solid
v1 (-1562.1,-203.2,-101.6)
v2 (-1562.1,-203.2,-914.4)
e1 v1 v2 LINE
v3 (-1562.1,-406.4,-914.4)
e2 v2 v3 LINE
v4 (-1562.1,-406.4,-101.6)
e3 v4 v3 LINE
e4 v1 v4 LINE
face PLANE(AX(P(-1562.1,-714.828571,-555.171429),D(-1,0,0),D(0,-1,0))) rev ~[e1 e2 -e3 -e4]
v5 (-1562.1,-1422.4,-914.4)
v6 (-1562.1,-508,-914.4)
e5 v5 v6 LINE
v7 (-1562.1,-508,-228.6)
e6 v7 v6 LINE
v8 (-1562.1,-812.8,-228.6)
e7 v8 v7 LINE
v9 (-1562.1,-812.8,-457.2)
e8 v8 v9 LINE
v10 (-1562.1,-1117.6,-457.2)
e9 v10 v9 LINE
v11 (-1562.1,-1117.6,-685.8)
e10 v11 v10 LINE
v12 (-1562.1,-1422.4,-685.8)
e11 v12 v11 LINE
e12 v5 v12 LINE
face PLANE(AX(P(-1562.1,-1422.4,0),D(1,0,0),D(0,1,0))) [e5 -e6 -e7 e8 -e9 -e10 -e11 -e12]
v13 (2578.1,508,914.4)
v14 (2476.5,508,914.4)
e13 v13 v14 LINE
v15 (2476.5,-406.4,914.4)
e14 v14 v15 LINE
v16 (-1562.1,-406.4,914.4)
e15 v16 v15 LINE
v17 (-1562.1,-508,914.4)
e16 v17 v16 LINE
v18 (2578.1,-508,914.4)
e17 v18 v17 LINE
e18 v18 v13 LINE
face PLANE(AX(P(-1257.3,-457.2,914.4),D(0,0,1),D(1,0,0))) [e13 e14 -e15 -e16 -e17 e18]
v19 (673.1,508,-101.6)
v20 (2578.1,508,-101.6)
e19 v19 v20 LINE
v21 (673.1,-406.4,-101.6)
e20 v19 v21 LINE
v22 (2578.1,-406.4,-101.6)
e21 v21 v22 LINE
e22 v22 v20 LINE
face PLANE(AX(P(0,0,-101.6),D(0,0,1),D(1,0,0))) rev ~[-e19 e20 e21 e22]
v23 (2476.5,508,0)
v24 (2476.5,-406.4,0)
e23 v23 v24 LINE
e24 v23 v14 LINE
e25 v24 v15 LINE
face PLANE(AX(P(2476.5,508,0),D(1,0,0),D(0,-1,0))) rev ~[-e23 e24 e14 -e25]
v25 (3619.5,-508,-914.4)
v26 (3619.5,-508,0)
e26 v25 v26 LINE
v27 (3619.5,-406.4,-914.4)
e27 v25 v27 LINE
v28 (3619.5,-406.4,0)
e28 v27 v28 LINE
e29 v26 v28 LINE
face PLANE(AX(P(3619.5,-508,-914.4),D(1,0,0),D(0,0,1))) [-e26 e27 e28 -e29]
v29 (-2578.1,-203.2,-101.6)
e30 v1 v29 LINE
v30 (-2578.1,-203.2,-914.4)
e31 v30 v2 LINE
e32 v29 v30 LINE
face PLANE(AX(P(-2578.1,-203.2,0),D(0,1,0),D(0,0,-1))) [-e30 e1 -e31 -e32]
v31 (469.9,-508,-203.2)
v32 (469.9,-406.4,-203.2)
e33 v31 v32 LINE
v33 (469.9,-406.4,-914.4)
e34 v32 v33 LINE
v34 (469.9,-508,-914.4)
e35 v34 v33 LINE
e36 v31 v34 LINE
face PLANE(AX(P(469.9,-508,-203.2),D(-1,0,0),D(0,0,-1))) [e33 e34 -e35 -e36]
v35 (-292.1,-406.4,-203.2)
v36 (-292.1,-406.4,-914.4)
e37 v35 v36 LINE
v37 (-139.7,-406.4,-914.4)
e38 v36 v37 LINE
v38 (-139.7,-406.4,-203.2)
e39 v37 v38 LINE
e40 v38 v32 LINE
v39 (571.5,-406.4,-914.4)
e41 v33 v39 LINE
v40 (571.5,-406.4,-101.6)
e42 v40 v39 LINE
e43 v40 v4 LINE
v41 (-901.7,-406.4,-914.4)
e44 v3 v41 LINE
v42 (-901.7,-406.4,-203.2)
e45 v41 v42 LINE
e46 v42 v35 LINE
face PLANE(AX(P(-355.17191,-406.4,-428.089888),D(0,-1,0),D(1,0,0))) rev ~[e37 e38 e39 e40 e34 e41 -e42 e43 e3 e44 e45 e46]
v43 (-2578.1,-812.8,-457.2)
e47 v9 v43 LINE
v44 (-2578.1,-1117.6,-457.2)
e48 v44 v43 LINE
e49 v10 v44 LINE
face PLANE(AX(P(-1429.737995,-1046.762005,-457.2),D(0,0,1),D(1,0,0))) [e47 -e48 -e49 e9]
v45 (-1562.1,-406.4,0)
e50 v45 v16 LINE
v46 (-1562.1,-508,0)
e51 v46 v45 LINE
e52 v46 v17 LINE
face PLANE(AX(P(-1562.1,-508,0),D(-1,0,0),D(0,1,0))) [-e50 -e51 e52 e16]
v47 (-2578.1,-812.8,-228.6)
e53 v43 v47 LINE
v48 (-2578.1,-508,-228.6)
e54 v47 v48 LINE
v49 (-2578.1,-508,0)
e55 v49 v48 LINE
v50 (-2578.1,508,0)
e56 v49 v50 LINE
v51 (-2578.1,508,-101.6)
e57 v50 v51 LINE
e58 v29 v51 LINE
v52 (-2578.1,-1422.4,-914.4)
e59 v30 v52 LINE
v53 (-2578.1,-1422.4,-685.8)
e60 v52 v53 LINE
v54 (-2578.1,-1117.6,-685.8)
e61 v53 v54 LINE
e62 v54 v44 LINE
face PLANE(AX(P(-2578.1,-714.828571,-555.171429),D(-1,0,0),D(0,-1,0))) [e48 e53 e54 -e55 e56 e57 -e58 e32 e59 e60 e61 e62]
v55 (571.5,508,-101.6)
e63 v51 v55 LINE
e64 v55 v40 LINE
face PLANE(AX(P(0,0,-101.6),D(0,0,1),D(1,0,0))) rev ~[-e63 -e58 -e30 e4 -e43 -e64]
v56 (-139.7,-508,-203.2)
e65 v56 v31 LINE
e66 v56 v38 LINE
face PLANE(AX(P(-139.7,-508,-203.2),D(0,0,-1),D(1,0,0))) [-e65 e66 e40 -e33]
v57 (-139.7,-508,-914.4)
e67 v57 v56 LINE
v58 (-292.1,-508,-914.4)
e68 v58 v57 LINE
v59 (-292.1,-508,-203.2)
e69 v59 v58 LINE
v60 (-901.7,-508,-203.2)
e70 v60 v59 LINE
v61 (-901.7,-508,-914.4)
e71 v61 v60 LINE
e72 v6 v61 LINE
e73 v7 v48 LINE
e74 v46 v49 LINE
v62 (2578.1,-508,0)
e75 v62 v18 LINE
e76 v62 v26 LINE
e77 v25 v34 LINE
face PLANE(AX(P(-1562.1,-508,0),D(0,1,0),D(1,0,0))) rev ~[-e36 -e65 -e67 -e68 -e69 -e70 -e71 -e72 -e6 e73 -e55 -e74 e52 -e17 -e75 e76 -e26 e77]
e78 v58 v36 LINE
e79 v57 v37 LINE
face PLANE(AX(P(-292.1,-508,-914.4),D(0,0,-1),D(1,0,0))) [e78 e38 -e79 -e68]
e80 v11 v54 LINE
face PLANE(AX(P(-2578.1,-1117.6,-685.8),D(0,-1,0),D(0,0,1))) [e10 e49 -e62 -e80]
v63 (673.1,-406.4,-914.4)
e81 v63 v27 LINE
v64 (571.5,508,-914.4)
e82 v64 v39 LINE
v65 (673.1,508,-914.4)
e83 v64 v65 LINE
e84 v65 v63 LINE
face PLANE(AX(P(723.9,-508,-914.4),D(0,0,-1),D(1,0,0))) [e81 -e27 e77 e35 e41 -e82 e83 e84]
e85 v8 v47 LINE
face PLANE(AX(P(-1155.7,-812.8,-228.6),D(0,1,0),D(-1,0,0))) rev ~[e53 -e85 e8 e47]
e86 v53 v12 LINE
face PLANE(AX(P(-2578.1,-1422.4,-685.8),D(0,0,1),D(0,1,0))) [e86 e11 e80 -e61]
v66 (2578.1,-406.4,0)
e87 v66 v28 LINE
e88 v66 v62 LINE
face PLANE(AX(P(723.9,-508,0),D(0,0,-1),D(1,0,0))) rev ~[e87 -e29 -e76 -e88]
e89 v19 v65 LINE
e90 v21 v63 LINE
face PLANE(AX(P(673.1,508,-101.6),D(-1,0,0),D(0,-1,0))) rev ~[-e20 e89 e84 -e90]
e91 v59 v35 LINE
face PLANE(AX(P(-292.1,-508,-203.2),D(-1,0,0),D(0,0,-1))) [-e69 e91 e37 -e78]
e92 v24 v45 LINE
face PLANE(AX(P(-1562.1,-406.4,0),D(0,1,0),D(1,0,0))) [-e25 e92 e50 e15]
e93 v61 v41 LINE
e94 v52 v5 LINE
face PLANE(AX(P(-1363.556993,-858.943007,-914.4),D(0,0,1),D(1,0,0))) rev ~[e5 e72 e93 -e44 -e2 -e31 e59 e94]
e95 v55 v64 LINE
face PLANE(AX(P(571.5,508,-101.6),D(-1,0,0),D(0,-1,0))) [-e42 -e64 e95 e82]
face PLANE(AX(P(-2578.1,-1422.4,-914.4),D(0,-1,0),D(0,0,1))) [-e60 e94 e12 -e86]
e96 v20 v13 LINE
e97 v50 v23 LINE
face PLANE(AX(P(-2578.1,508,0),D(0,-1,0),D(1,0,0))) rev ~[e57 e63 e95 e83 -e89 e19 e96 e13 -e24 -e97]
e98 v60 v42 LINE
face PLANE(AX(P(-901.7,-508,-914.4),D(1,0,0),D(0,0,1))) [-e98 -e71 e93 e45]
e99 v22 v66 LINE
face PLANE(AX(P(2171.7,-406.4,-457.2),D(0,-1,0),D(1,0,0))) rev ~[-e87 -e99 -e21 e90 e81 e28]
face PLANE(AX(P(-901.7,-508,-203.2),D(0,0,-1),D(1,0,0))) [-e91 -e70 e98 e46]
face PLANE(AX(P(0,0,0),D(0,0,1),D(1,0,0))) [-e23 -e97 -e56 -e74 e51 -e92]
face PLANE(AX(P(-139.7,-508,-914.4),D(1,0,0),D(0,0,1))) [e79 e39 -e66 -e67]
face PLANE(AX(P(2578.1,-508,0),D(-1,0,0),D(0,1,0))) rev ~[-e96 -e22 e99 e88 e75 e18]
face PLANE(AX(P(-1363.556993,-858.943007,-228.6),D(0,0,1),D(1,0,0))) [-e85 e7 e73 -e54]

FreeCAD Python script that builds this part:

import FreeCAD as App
import Part
import Sketcher
from FreeCAD import Vector
Q = App.Units.Quantity


def add_polygon(sketch, points):
    """Adds a closed chain of lines whose ends are joined by coincident constraints."""
    first, n = sketch.GeometryCount, len(points)
    for a, b in zip(points, points[1:] + points[:1]):
        sketch.addGeometry(Part.LineSegment(App.Vector(*a, 0), App.Vector(*b, 0)), False)
    for i in range(n):
        sketch.addConstraint(Sketcher.Constraint("Coincident", first + i, 2, first + (i + 1) % n, 1))

doc = App.newDocument("Part")
params = doc.addObject("Spreadsheet::Sheet", "Params")
for row, (alias, value) in enumerate([
    ("sketch1_width", "203 in"),
    ("sketch1_height", "40 in"),
    ("pad1_length", "4 in"),
    ("sketch2_width", "12 in"),
    ("sketch2_height", "9 in"),
    ("pad2_length", "40 in"),
    ("sketch3_width", "90 in"),
    ("sketch3_width2", "26 in"),
    ("sketch3_width3", "24 in"),
    ("sketch3_width4", "6 in"),
    ("sketch3_height", "32 in"),
    ("pad3_length", "4 in"),
    ("sketch4_width", "24 in"),
    ("sketch4_height", "36 in"),
    ("pad4_length", "27 in"),
    ("sketch5_width", "16 in"),
    ("sketch5_height", "24 in"),
    ("pocket1_length", "9 in"),
    ("sketch6_width", "8 in"),
    ("sketch6_height", "12 in"),
    ("pocket2_length", "9 in"),
    ("sketch7_width", "139 in"),
    ("sketch7_width2", "4 in"),
    ("sketch7_height", "40 in"),
    ("pad5_length", "36 in"),
    ("sketch8_width", "4 in"),
    ("sketch8_height", "36 in"),
    ("pad6_length", "32 in"),
    ("sketch9_width", "114 in"),
    ("sketch9_height", "36 in"),
    ("pad7_length", "4 in"),
    ("sketch10_width", "24 in"),
    ("sketch10_height", "36 in"),
    ("sketch11_width", "24 in"),
    ("sketch11_height", "4 in"),
    ("pad8_length", "36 in"),
], start=1):
    params.set(f"A{row}", alias)
    params.set(f"B{row}", "=" + value)
    params.setAlias(f"B{row}", alias)

body = doc.addObject("PartDesign::Body", "Body")

sketch1 = body.newObject("Sketcher::SketchObject", "Sketch")
sketch1.AttachmentSupport = (doc.getObject("XY_Plane"), [""])
sketch1.MapMode = "FlatFace"
add_polygon(sketch1, [(-2578.1, 508), (-2578.1, -508), (2578.1, -508), (2578.1, 508)])
sketch1.addConstraint(Sketcher.Constraint("Vertical", 0))
sketch1.addConstraint(Sketcher.Constraint("Horizontal", 1))
sketch1.addConstraint(Sketcher.Constraint("Vertical", 2))
sketch1.addConstraint(Sketcher.Constraint("Horizontal", 3))
sketch1.addConstraint(Sketcher.Constraint("Symmetric", 0, 2, 2, 2, -1, 1))
sketch1.addConstraint(Sketcher.Constraint("DistanceX", 1, 1, 1, 2, Q("203 in")))
sketch1.addConstraint(Sketcher.Constraint("DistanceY", 0, 2, 0, 1, Q("40 in")))
sketch1.setExpression("Constraints[9]", "Params.sketch1_width")
sketch1.setExpression("Constraints[10]", "Params.sketch1_height")
pad1 = body.newObject("PartDesign::Pad", "Pad")
pad1.Profile = sketch1
pad1.setExpression("Length", "Params.pad1_length")
pad1.Reversed = True

sketch2 = body.newObject("Sketcher::SketchObject", "Sketch001")
sketch2.AttachmentSupport = (doc.getObject("YZ_Plane"), [""])
sketch2.MapMode = "FlatFace"
sketch2.AttachmentOffset = App.Placement(Vector(0, 0, -101.5 * 25.4), App.Rotation())
add_polygon(sketch2, [(-508, -228.6), (-508, 0), (-203.2, 0), (-203.2, -914.4), (-1422.4, -914.4), (-1422.4, -685.8), (-1117.6, -685.8), (-1117.6, -457.2), (-812.8, -457.2), (-812.8, -228.6)])
sketch2.addConstraint(Sketcher.Constraint("Vertical", 0))
sketch2.addConstraint(Sketcher.Constraint("Horizontal", 1))
sketch2.addConstraint(Sketcher.Constraint("Vertical", 2))
sketch2.addConstraint(Sketcher.Constraint("Horizontal", 3))
sketch2.addConstraint(Sketcher.Constraint("Vertical", 4))
sketch2.addConstraint(Sketcher.Constraint("Horizontal", 5))
sketch2.addConstraint(Sketcher.Constraint("Vertical", 6))
sketch2.addConstraint(Sketcher.Constraint("Horizontal", 7))
sketch2.addConstraint(Sketcher.Constraint("Vertical", 8))
sketch2.addConstraint(Sketcher.Constraint("Horizontal", 9))
sketch2.addConstraint(Sketcher.Constraint("PointOnObject", 0, 2, -1))
sketch2.addConstraint(Sketcher.Constraint("Equal", 1, 5))
sketch2.addConstraint(Sketcher.Constraint("Equal", 5, 7))
sketch2.addConstraint(Sketcher.Constraint("Equal", 7, 9))
sketch2.addConstraint(Sketcher.Constraint("Equal", 0, 4))
sketch2.addConstraint(Sketcher.Constraint("Equal", 4, 6))
sketch2.addConstraint(Sketcher.Constraint("Equal", 6, 8))
sketch2.addConstraint(Sketcher.Constraint("DistanceX", 1, 1, 1, 2, Q("12 in")))
sketch2.addConstraint(Sketcher.Constraint("DistanceY", 0, 1, 0, 2, Q("9 in")))
sketch2.addConstraint(Sketcher.Constraint("DistanceX", 0, 2, -1, 1, Q("20 in")))
sketch2.setExpression("Constraints[27]", "Params.sketch2_width")
sketch2.setExpression("Constraints[28]", "Params.sketch2_height")
pad2 = body.newObject("PartDesign::Pad", "Pad001")
pad2.Profile = sketch2
pad2.setExpression("Length", "Params.pad2_length")

sketch3 = body.newObject("Sketcher::SketchObject", "Sketch002")
sketch3.AttachmentSupport = (doc.getObject("XZ_Plane"), [""])
sketch3.MapMode = "FlatFace"
sketch3.AttachmentOffset = App.Placement(Vector(0, 0, 20 * 25.4), App.Rotation())
add_polygon(sketch3, [(723.9, -101.6), (-1562.1, -101.6), (-1562.1, -914.4), (-901.7, -914.4), (-901.7, -203.2), (-292.1, -203.2), (-292.1, -914.4), (-139.7, -914.4), (-139.7, -203.2), (469.9, -203.2), (469.9, -914.4), (723.9, -914.4)])
sketch3.addConstraint(Sketcher.Constraint("Horizontal", 0))
sketch3.addConstraint(Sketcher.Constraint("Vertical", 1))
sketch3.addConstraint(Sketcher.Constraint("Horizontal", 2))
sketch3.addConstraint(Sketcher.Constraint("Vertical", 3))
sketch3.addConstraint(Sketcher.Constraint("Horizontal", 4))
sketch3.addConstraint(Sketcher.Constraint("Vertical", 5))
sketch3.addConstraint(Sketcher.Constraint("Horizontal", 6))
sketch3.addConstraint(Sketcher.Constraint("Vertical", 7))
sketch3.addConstraint(Sketcher.Constraint("Horizontal", 8))
sketch3.addConstraint(Sketcher.Constraint("Vertical", 9))
sketch3.addConstraint(Sketcher.Constraint("Horizontal", 10))
sketch3.addConstraint(Sketcher.Constraint("Vertical", 11))
sketch3.addConstraint(Sketcher.Constraint("Horizontal", 2, 2, 5, 2))
sketch3.addConstraint(Sketcher.Constraint("Horizontal", 4, 2, 7, 2))
sketch3.addConstraint(Sketcher.Constraint("Horizontal", 6, 2, 9, 2))
sketch3.addConstraint(Sketcher.Constraint("Equal", 4, 8))
sketch3.addConstraint(Sketcher.Constraint("DistanceX", 0, 2, 0, 1, Q("90 in")))
sketch3.addConstraint(Sketcher.Constraint("DistanceX", 2, 1, 2, 2, Q("26 in")))
sketch3.addConstraint(Sketcher.Constraint("DistanceX", 4, 1, 4, 2, Q("24 in")))
sketch3.addConstraint(Sketcher.Constraint("DistanceX", 6, 1, 6, 2, Q("6 in")))
sketch3.addConstraint(Sketcher.Constraint("DistanceY", 1, 2, 1, 1, Q("32 in")))
sketch3.addConstraint(Sketcher.Constraint("DistanceY", 3, 1, 3, 2, Q("28 in")))
sketch3.addConstraint(Sketcher.Constraint("DistanceY", 0, 2, -1, 1, Q("4 in")))
sketch3.addConstraint(Sketcher.Constraint("DistanceX", 0, 2, -1, 1, Q("61.5 in")))
sketch3.setExpression("Constraints[28]", "Params.sketch3_width")
sketch3.setExpression("Constraints[29]", "Params.sketch3_width2")
sketch3.setExpression("Constraints[30]", "Params.sketch3_width3")
sketch3.setExpression("Constraints[31]", "Params.sketch3_width4")
sketch3.setExpression("Constraints[32]", "Params.sketch3_height")
pad3 = body.newObject("PartDesign::Pad", "Pad002")
pad3.Profile = sketch3
pad3.setExpression("Length", "Params.pad3_length")
pad3.Reversed = True

sketch4 = body.newObject("Sketcher::SketchObject", "Sketch003")
sketch4.AttachmentSupport = (doc.getObject("XY_Plane"), [""])
sketch4.MapMode = "FlatFace"
sketch4.AttachmentOffset = App.Placement(Vector(0, 0, -9 * 25.4), App.Rotation())
add_polygon(sketch4, [(-952.5, -508), (-1562.1, -508), (-1562.1, -1422.4)])
sketch4.addConstraint(Sketcher.Constraint("Horizontal", 0))
sketch4.addConstraint(Sketcher.Constraint("Vertical", 1))
sketch4.addConstraint(Sketcher.Constraint("DistanceX", 0, 2, 0, 1, Q("24 in")))
sketch4.addConstraint(Sketcher.Constraint("DistanceY", 1, 2, 1, 1, Q("36 in")))
sketch4.addConstraint(Sketcher.Constraint("DistanceY", 0, 2, -1, 1, Q("20 in")))
sketch4.addConstraint(Sketcher.Constraint("DistanceX", 0, 2, -1, 1, Q("61.5 in")))
sketch4.setExpression("Constraints[5]", "Params.sketch4_width")
sketch4.setExpression("Constraints[6]", "Params.sketch4_height")
pad4 = body.newObject("PartDesign::Pad", "Pad003")
pad4.Profile = sketch4
pad4.setExpression("Length", "Params.pad4_length")
pad4.Reversed = True

sketch5 = body.newObject("Sketcher::SketchObject", "Sketch004")
sketch5.AttachmentSupport = (doc.getObject("XY_Plane"), [""])
sketch5.MapMode = "FlatFace"
sketch5.AttachmentOffset = App.Placement(Vector(0, 0, -9 * 25.4), App.Rotation())
add_polygon(sketch5, [(-1155.7, -812.8), (-1562.1, -812.8), (-1562.1, -1422.4)])
sketch5.addConstraint(Sketcher.Constraint("Horizontal", 0))
sketch5.addConstraint(Sketcher.Constraint("Vertical", 1))
sketch5.addConstraint(Sketcher.Constraint("DistanceX", 0, 2, 0, 1, Q("16 in")))
sketch5.addConstraint(Sketcher.Constraint("DistanceY", 1, 2, 1, 1, Q("24 in")))
sketch5.addConstraint(Sketcher.Constraint("DistanceY", 0, 2, -1, 1, Q("32 in")))
sketch5.addConstraint(Sketcher.Constraint("DistanceX", 0, 2, -1, 1, Q("61.5 in")))
sketch5.setExpression("Constraints[5]", "Params.sketch5_width")
sketch5.setExpression("Constraints[6]", "Params.sketch5_height")
pocket1 = body.newObject("PartDesign::Pocket", "Pocket")
pocket1.Profile = sketch5
pocket1.setExpression("Length", "Params.pocket1_length")

sketch6 = body.newObject("Sketcher::SketchObject", "Sketch005")
sketch6.AttachmentSupport = (doc.getObject("XY_Plane"), [""])
sketch6.MapMode = "FlatFace"
sketch6.AttachmentOffset = App.Placement(Vector(0, 0, -18 * 25.4), App.Rotation())
add_polygon(sketch6, [(-1358.9, -1117.6), (-1562.1, -1117.6), (-1562.1, -1422.4)])
sketch6.addConstraint(Sketcher.Constraint("Horizontal", 0))
sketch6.addConstraint(Sketcher.Constraint("Vertical", 1))
sketch6.addConstraint(Sketcher.Constraint("DistanceX", 0, 2, 0, 1, Q("8 in")))
sketch6.addConstraint(Sketcher.Constraint("DistanceY", 1, 2, 1, 1, Q("12 in")))
sketch6.addConstraint(Sketcher.Constraint("DistanceY", 0, 2, -1, 1, Q("44 in")))
sketch6.addConstraint(Sketcher.Constraint("DistanceX", 0, 2, -1, 1, Q("61.5 in")))
sketch6.setExpression("Constraints[5]", "Params.sketch6_width")
sketch6.setExpression("Constraints[6]", "Params.sketch6_height")
pocket2 = body.newObject("PartDesign::Pocket", "Pocket001")
pocket2.Profile = sketch6
pocket2.setExpression("Length", "Params.pocket2_length")

sketch7 = body.newObject("Sketcher::SketchObject", "Sketch006")
sketch7.AttachmentSupport = (doc.getObject("XY_Plane"), [""])
sketch7.MapMode = "FlatFace"
add_polygon(sketch7, [(-952.5, -406.4), (-952.5, -508), (2578.1, -508), (2578.1, 508), (2476.5, 508), (2476.5, -406.4)])
sketch7.addConstraint(Sketcher.Constraint("Vertical", 0))
sketch7.addConstraint(Sketcher.Constraint("Horizontal", 1))
sketch7.addConstraint(Sketcher.Constraint("Vertical", 2))
sketch7.addConstraint(Sketcher.Constraint("Horizontal", 3))
sketch7.addConstraint(Sketcher.Constraint("Vertical", 4))
sketch7.addConstraint(Sketcher.Constraint("Horizontal", 5))
sketch7.addConstraint(Sketcher.Constraint("Equal", 3, 0))
sketch7.addConstraint(Sketcher.Constraint("DistanceX", 1, 1, 1, 2, Q("139 in")))
sketch7.addConstraint(Sketcher.Constraint("DistanceX", 3, 2, 3, 1, Q("4 in")))
sketch7.addConstraint(Sketcher.Constraint("DistanceY", 2, 1, 2, 2, Q("40 in")))
sketch7.addConstraint(Sketcher.Constraint("DistanceY", 0, 2, -1, 1, Q("20 in")))
sketch7.addConstraint(Sketcher.Constraint("DistanceX", 0, 2, -1, 1, Q("37.5 in")))
sketch7.setExpression("Constraints[13]", "Params.sketch7_width")
sketch7.setExpression("Constraints[14]", "Params.sketch7_width2")
sketch7.setExpression("Constraints[15]", "Params.sketch7_height")
pad5 = body.newObject("PartDesign::Pad", "Pad004")
pad5.Profile = sketch7
pad5.setExpression("Length", "Params.pad5_length")

sketch8 = body.newObject("Sketcher::SketchObject", "Sketch007")
sketch8.AttachmentSupport = (doc.getObject("XY_Plane"), [""])
sketch8.MapMode = "FlatFace"
sketch8.AttachmentOffset = App.Placement(Vector(0, 0, -4 * 25.4), App.Rotation())
add_polygon(sketch8, [(571.5, -406.4), (571.5, 508), (673.1, 508), (673.1, -406.4)])
sketch8.addConstraint(Sketcher.Constraint("Vertical", 0))
sketch8.addConstraint(Sketcher.Constraint("Horizontal", 1))
sketch8.addConstraint(Sketcher.Constraint("Vertical", 2))
sketch8.addConstraint(Sketcher.Constraint("Horizontal", 3))
sketch8.addConstraint(Sketcher.Constraint("DistanceX", 1, 1, 1, 2, Q("4 in")))
sketch8.addConstraint(Sketcher.Constraint("DistanceY", 0, 1, 0, 2, Q("36 in")))
sketch8.addConstraint(Sketcher.Constraint("DistanceY", -1, 1, 0, 2, Q("20 in")))
sketch8.addConstraint(Sketcher.Constraint("DistanceX", -1, 1, 0, 2, Q("22.5 in")))
sketch8.setExpression("Constraints[8]", "Params.sketch8_width")
sketch8.setExpression("Constraints[9]", "Params.sketch8_height")
pad6 = body.newObject("PartDesign::Pad", "Pad005")
pad6.Profile = sketch8
pad6.setExpression("Length", "Params.pad6_length")
pad6.Reversed = True

sketch9 = body.newObject("Sketcher::SketchObject", "Sketch008")
sketch9.AttachmentSupport = (doc.getObject("XZ_Plane"), [""])
sketch9.MapMode = "FlatFace"
sketch9.AttachmentOffset = App.Placement(Vector(0, 0, 20 * 25.4), App.Rotation())
add_polygon(sketch9, [(723.9, 0), (723.9, -914.4), (3619.5, -914.4), (3619.5, 0)])
sketch9.addConstraint(Sketcher.Constraint("Vertical", 0))
sketch9.addConstraint(Sketcher.Constraint("Horizontal", 1))
sketch9.addConstraint(Sketcher.Constraint("Vertical", 2))
sketch9.addConstraint(Sketcher.Constraint("Horizontal", 3))
sketch9.addConstraint(Sketcher.Constraint("PointOnObject", 2, 2, -1))
sketch9.addConstraint(Sketcher.Constraint("DistanceX", 1, 1, 1, 2, Q("114 in")))
sketch9.addConstraint(Sketcher.Constraint("DistanceY", 0, 2, 0, 1, Q("36 in")))
sketch9.addConstraint(Sketcher.Constraint("DistanceX", -1, 1, 0, 2, Q("28.5 in")))
sketch9.setExpression("Constraints[9]", "Params.sketch9_width")
sketch9.setExpression("Constraints[10]", "Params.sketch9_height")
pad7 = body.newObject("PartDesign::Pad", "Pad006")
pad7.Profile = sketch9
pad7.setExpression("Length", "Params.pad7_length")
pad7.Reversed = True

sketch10 = body.newObject("Sketcher::SketchObject", "Sketch009")
sketch10.AttachmentSupport = (doc.getObject("XY_Plane"), [""])
sketch10.MapMode = "FlatFace"
add_polygon(sketch10, [(-1562.1, -508), (-1562.1, -1422.4), (-952.5, -1422.4), (-952.5, -508)])
sketch10.addConstraint(Sketcher.Constraint("Vertical", 0))
sketch10.addConstraint(Sketcher.Constraint("Horizontal", 1))
sketch10.addConstraint(Sketcher.Constraint("Vertical", 2))
sketch10.addConstraint(Sketcher.Constraint("Horizontal", 3))
sketch10.addConstraint(Sketcher.Constraint("DistanceX", 1, 1, 1, 2, Q("24 in")))
sketch10.addConstraint(Sketcher.Constraint("DistanceY", 0, 2, 0, 1, Q("36 in")))
sketch10.addConstraint(Sketcher.Constraint("DistanceY", 0, 2, -1, 1, Q("56 in")))
sketch10.addConstraint(Sketcher.Constraint("DistanceX", 0, 2, -1, 1, Q("61.5 in")))
sketch10.setExpression("Constraints[8]", "Params.sketch10_width")
sketch10.setExpression("Constraints[9]", "Params.sketch10_height")
pocket3 = body.newObject("PartDesign::Pocket", "Pocket002")
pocket3.Profile = sketch10
pocket3.Type = "ThroughAll"

sketch11 = body.newObject("Sketcher::SketchObject", "Sketch010")
sketch11.AttachmentSupport = (doc.getObject("XY_Plane"), [""])
sketch11.MapMode = "FlatFace"
add_polygon(sketch11, [(-1562.1, -406.4), (-1562.1, -508), (-952.5, -508), (-952.5, -406.4)])
sketch11.addConstraint(Sketcher.Constraint("Vertical", 0))
sketch11.addConstraint(Sketcher.Constraint("Horizontal", 1))
sketch11.addConstraint(Sketcher.Constraint("Vertical", 2))
sketch11.addConstraint(Sketcher.Constraint("Horizontal", 3))
sketch11.addConstraint(Sketcher.Constraint("DistanceX", 1, 1, 1, 2, Q("24 in")))
sketch11.addConstraint(Sketcher.Constraint("DistanceY", 0, 2, 0, 1, Q("4 in")))
sketch11.addConstraint(Sketcher.Constraint("DistanceY", 0, 2, -1, 1, Q("20 in")))
sketch11.addConstraint(Sketcher.Constraint("DistanceX", 0, 2, -1, 1, Q("61.5 in")))
sketch11.setExpression("Constraints[8]", "Params.sketch11_width")
sketch11.setExpression("Constraints[9]", "Params.sketch11_height")
pad8 = body.newObject("PartDesign::Pad", "Pad007")
pad8.Profile = sketch11
pad8.setExpression("Length", "Params.pad8_length")

doc.recompute()
